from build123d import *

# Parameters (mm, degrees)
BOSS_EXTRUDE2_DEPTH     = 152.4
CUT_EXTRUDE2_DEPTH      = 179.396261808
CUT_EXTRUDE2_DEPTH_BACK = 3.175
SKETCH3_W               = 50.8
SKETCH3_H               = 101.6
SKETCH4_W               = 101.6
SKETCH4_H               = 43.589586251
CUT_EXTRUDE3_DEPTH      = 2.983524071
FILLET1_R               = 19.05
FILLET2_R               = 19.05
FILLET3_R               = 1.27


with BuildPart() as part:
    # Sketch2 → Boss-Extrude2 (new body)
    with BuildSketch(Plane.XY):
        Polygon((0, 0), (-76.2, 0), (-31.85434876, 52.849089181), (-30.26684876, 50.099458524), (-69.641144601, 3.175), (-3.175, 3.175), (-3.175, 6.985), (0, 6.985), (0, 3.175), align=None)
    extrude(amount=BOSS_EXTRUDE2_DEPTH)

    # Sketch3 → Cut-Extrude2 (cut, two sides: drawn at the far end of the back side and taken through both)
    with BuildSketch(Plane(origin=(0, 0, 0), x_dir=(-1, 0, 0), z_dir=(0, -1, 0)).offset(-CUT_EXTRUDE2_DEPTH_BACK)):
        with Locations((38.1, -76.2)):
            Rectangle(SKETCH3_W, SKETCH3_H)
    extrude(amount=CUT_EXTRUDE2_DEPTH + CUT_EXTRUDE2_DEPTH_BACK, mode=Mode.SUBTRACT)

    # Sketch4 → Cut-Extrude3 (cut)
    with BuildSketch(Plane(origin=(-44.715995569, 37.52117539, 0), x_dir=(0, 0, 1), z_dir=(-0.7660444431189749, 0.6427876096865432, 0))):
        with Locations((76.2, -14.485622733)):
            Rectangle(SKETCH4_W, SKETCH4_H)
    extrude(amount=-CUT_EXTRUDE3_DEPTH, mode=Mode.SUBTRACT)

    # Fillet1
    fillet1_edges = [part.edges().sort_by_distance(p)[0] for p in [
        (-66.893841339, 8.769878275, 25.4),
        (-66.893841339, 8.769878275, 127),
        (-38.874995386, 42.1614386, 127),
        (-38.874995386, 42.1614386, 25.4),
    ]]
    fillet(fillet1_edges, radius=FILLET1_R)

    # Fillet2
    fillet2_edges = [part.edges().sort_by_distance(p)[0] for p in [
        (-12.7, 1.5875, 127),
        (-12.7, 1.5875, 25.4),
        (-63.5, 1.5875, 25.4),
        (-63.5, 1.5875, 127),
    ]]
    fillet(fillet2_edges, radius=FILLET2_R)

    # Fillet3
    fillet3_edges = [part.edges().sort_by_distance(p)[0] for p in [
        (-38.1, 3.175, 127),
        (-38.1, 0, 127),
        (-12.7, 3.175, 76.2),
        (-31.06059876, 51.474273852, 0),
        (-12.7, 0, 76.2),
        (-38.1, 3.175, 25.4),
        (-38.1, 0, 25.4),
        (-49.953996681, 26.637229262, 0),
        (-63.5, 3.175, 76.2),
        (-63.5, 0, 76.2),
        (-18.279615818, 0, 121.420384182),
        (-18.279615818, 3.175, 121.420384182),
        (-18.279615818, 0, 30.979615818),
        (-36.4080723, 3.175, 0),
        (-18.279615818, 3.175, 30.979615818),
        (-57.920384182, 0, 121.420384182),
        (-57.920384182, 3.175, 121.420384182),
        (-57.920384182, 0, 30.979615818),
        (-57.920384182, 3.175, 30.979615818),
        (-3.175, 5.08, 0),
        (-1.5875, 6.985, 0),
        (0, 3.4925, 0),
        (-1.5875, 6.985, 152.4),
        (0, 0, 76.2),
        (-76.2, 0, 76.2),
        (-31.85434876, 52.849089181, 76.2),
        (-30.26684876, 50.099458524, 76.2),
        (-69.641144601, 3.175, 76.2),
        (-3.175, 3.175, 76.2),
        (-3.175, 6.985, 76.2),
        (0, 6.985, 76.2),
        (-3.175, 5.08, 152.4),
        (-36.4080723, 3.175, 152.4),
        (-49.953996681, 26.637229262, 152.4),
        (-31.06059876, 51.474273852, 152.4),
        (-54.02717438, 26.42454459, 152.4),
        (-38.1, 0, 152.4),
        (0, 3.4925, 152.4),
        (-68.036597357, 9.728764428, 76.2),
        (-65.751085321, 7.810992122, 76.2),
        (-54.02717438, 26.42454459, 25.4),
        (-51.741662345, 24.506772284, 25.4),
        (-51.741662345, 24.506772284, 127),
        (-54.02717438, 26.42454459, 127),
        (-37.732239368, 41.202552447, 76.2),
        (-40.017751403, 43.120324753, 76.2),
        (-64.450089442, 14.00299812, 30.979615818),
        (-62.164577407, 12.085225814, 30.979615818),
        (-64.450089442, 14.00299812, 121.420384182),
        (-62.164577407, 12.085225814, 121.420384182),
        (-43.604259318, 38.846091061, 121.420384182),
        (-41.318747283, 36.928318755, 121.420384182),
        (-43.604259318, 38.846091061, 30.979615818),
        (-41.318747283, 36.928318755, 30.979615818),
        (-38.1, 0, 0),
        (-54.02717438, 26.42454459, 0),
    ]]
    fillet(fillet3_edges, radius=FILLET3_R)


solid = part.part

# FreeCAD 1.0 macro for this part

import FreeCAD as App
import Part
import Sketcher
Q = App.Units.Quantity


def edges_at(feature, points):
    """Names of the edges that pass closest to the given points."""
    edges = feature.Shape.Edges
    near = lambda p: min(range(len(edges)), key=lambda i: edges[i].distToShape(Part.Vertex(*p))[0])
    return sorted({f"Edge{near(p) + 1}" for p in points})

doc = App.newDocument("Part")
body = doc.addObject("PartDesign::Body", "Body")

# Sketch on XY plane
sketch1 = body.newObject("Sketcher::SketchObject", "Sketch")
sketch1.AttachmentSupport = (doc.getObject("XY_Plane"), [""])
sketch1.MapMode = "FlatFace"
sketch1.addGeometry([
    Part.LineSegment(App.Vector(-76.2, 0, 0), App.Vector(0, 0, 0)),  # 0
    Part.LineSegment(App.Vector(0, 0, 0), App.Vector(0, 7, 0)),  # 1
    Part.LineSegment(App.Vector(0, 7, 0), App.Vector(-3.2, 7, 0)),  # 2
    Part.LineSegment(App.Vector(-3.2, 7, 0), App.Vector(-3.2, 3.2, 0)),  # 3
    Part.LineSegment(App.Vector(-3.2, 3.2, 0), App.Vector(-69.6, 3.2, 0)),  # 4
    Part.LineSegment(App.Vector(-69.6, 3.2, 0), App.Vector(-30.3, 50.1, 0)),  # 5
    Part.LineSegment(App.Vector(-30.3, 50.1, 0), App.Vector(-31.9, 52.8, 0)),  # 6
    Part.LineSegment(App.Vector(-31.9, 52.8, 0), App.Vector(-76.2, 0, 0)),  # 7
], False)
sketch1.addConstraint([
    Sketcher.Constraint("Coincident", 0, 2, 1, 1),
    Sketcher.Constraint("Coincident", 1, 2, 2, 1),
    Sketcher.Constraint("Coincident", 2, 2, 3, 1),
    Sketcher.Constraint("Coincident", 3, 2, 4, 1),
    Sketcher.Constraint("Coincident", 4, 2, 5, 1),
    Sketcher.Constraint("Coincident", 5, 2, 6, 1),
    Sketcher.Constraint("Coincident", 6, 2, 7, 1),
    Sketcher.Constraint("Coincident", 7, 2, 0, 1),
    Sketcher.Constraint("Horizontal", 0),
    Sketcher.Constraint("Vertical", 1),
    Sketcher.Constraint("Horizontal", 2),
    Sketcher.Constraint("Vertical", 3),
    Sketcher.Constraint("Horizontal", 4),
    Sketcher.Constraint("Coincident", 0, 2, -1, 1),
    Sketcher.Constraint("Parallel", 5, 7),
    Sketcher.Constraint("DistanceX", 0, 1, 0, 2, Q("3 in")),
    Sketcher.Constraint("Angle", 5, Q("50 deg")),
    Sketcher.Constraint("Angle", 6, Q("120 deg")),
    Sketcher.Constraint("DistanceY", 3, 2, 3, 1, Q("0.15 in")),
    Sketcher.Constraint("DistanceX", 2, 2, 2, 1, Q("0.125 in")),
    Sketcher.Constraint("DistanceY", 1, 1, 1, 2, Q("0.275 in")),
    Sketcher.Constraint("Distance", 6, Q("0.125 in")),
    Sketcher.Constraint("Distance", 5, Q("61.25553 mm")),
])
pad1 = body.newObject("PartDesign::Pad", "Pad")
pad1.Profile = sketch1
pad1.Length = Q("6 in")

# Sketch on XZ plane
sketch2 = body.newObject("Sketcher::SketchObject", "Sketch001")
sketch2.AttachmentSupport = (doc.getObject("XZ_Plane"), [""])
sketch2.MapMode = "FlatFace"
sketch2.addGeometry([
    Part.LineSegment(App.Vector(-13, 25, 0), App.Vector(-13, 127, 0)),
    Part.LineSegment(App.Vector(-13, 127, 0), App.Vector(-64, 127, 0)),
    Part.LineSegment(App.Vector(-64, 127, 0), App.Vector(-64, 25, 0)),
    Part.LineSegment(App.Vector(-64, 25, 0), App.Vector(-13, 25, 0)),
], False)
sketch2.addConstraint([
    Sketcher.Constraint("Coincident", 0, 2, 1, 1),
    Sketcher.Constraint("Coincident", 1, 2, 2, 1),
    Sketcher.Constraint("Coincident", 2, 2, 3, 1),
    Sketcher.Constraint("Coincident", 3, 2, 0, 1),
    Sketcher.Constraint("Vertical", 0),
    Sketcher.Constraint("Horizontal", 1),
    Sketcher.Constraint("Vertical", 2),
    Sketcher.Constraint("Horizontal", 3),
    Sketcher.Constraint("DistanceX", 1, 2, 1, 1, Q("2 in")),
    Sketcher.Constraint("DistanceY", 0, 1, 0, 2, Q("4 in")),
    Sketcher.Constraint("DistanceY", -1, 1, 0, 2, Q("5 in")),
    Sketcher.Constraint("DistanceX", 0, 2, -1, 1, Q("0.5 in")),
])
pocket1 = body.newObject("PartDesign::Pocket", "Pocket")
pocket1.Profile = sketch2
pocket1.Type = "TwoLengths"
pocket1.Length = 179.396262
pocket1.Length2 = Q("0.125 in")
pocket1.Reversed = True

# Sketch on an angled plane
sketch3 = body.newObject("Sketcher::SketchObject", "Sketch002")
sketch3.Placement = App.Placement(App.Vector(-44.715996, 37.521175, 0), App.Rotation(App.Vector(0, 0, 1), App.Vector(0.64278761, 0.766044443, 0), App.Vector(-0.766044443, 0.64278761, 0), "ZXY"))
sketch3.addGeometry([
    Part.LineSegment(App.Vector(25, 7, 0), App.Vector(25, -36, 0)),
    Part.LineSegment(App.Vector(25, -36, 0), App.Vector(127, -36, 0)),
    Part.LineSegment(App.Vector(127, -36, 0), App.Vector(127, 7, 0)),
    Part.LineSegment(App.Vector(127, 7, 0), App.Vector(25, 7, 0)),
], False)
sketch3.addConstraint([
    Sketcher.Constraint("Coincident", 0, 2, 1, 1),
    Sketcher.Constraint("Coincident", 1, 2, 2, 1),
    Sketcher.Constraint("Coincident", 2, 2, 3, 1),
    Sketcher.Constraint("Coincident", 3, 2, 0, 1),
    Sketcher.Constraint("Vertical", 0),
    Sketcher.Constraint("Horizontal", 1),
    Sketcher.Constraint("Vertical", 2),
    Sketcher.Constraint("Horizontal", 3),
    Sketcher.Constraint("DistanceX", 1, 1, 1, 2, Q("4 in")),
    Sketcher.Constraint("DistanceX", -1, 1, 0, 2, Q("1 in")),
    Sketcher.Constraint("DistanceY", 0, 2, 0, 1, Q("43.589586 mm")),
    Sketcher.Constraint("DistanceY", -1, 1, 2, 2, Q("7.30917 mm")),
])
pocket2 = body.newObject("PartDesign::Pocket", "Pocket001")
pocket2.Profile = sketch3
pocket2.Length = 2.983524
doc.recompute()

fillet = body.newObject("PartDesign::Fillet", "Fillet")
fillet.Base = (pocket2, edges_at(pocket2, [
    (-66.894, 8.77, 25.4),
    (-66.894, 8.77, 127),
    (-38.875, 42.161, 127),
    (-38.875, 42.161, 25.4),
]))
fillet.Radius = Q("0.75 in")
doc.recompute()

fillet2 = body.newObject("PartDesign::Fillet", "Fillet001")
fillet2.Base = (fillet, edges_at(fillet, [
    (-12.7, 1.587, 127),
    (-12.7, 1.587, 25.4),
    (-63.5, 1.587, 25.4),
    (-63.5, 1.587, 127),
]))
fillet2.Radius = Q("0.75 in")
doc.recompute()

fillet3 = body.newObject("PartDesign::Fillet", "Fillet002")
fillet3.Base = (fillet2, ["Edge1"])
fillet3.UseAllEdges = True
fillet3.Radius = Q("0.05 in")

doc.recompute()
